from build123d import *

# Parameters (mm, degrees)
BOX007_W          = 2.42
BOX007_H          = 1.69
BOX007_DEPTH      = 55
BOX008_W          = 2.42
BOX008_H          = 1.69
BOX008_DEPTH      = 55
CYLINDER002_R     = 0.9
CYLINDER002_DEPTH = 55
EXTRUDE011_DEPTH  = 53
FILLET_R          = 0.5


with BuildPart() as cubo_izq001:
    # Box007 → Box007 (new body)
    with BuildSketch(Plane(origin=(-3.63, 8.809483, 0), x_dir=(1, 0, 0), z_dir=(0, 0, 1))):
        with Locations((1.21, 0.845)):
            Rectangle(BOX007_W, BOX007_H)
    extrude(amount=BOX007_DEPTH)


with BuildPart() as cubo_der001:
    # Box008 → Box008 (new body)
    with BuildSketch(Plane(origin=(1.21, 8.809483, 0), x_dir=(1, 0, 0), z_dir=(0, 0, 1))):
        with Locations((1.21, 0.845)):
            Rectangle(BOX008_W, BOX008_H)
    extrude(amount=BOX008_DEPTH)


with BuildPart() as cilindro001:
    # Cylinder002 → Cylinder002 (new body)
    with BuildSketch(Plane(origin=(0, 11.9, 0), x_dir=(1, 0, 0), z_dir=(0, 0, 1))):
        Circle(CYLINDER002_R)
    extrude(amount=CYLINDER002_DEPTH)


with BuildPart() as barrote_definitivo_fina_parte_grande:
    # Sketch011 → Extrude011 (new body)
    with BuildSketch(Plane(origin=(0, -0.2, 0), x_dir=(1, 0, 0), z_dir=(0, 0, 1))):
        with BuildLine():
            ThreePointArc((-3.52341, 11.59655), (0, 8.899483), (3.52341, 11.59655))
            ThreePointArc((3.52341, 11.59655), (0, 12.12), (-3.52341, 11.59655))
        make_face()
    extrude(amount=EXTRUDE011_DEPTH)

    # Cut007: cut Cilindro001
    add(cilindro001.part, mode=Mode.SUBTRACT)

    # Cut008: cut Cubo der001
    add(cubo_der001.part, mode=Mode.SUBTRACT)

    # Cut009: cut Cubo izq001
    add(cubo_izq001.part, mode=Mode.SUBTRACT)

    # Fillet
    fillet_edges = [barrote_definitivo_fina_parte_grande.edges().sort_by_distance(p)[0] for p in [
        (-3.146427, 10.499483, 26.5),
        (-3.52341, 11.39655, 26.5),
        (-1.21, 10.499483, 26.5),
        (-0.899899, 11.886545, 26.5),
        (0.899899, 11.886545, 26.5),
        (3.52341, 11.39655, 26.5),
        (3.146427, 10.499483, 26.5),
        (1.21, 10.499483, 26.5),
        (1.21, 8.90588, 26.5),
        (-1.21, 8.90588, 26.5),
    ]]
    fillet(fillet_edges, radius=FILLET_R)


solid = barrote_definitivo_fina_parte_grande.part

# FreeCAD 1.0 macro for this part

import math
import FreeCAD as App
import Part
import Sketcher

V = App.Vector
Q = App.Units.Quantity


def edges_at(feature, points):
    """Names of the edges that pass closest to the given points."""
    edges = feature.Shape.Edges
    near = lambda p: min(range(len(edges)), key=lambda i: edges[i].distToShape(Part.Vertex(*p))[0])
    return sorted({f"Edge{near(p) + 1}" for p in points})


def add_polygon(sketch, points):
    """Adds a closed chain of lines whose ends are joined by coincident constraints."""
    first, n = sketch.GeometryCount, len(points)
    for a, b in zip(points, points[1:] + points[:1]):
        sketch.addGeometry(Part.LineSegment(App.Vector(*a, 0), App.Vector(*b, 0)), False)
    for i in range(n):
        sketch.addConstraint(Sketcher.Constraint("Coincident", first + i, 2, first + (i + 1) % n, 1))

doc = App.newDocument("Part")
body = doc.addObject("PartDesign::Body", "Body")

# Sketch on XY plane
sketch1 = body.newObject("Sketcher::SketchObject", "Sketch")
sketch1.AttachmentSupport = (doc.getObject("XY_Plane"), [""])
sketch1.MapMode = "FlatFace"
add_polygon(sketch1, [(-3.63, 10.499483), (-3.63, 8.809483), (-1.21, 8.809483), (-1.21, 10.499483)])  # lines 0-3
sketch1.addConstraint([
    Sketcher.Constraint("Vertical", 0),
    Sketcher.Constraint("Horizontal", 1),
    Sketcher.Constraint("Vertical", 2),
    Sketcher.Constraint("Horizontal", 3),
    Sketcher.Constraint("DistanceX", 1, 1, 1, 2, Q("2.42 mm")),
    Sketcher.Constraint("DistanceY", 0, 2, 0, 1, Q("1.69 mm")),
    Sketcher.Constraint("DistanceX", 0, 2, -1, 1, Q("3.63 mm")),
    Sketcher.Constraint("DistanceY", -1, 1, 0, 2, Q("8.809483 mm")),
])
pad1 = body.newObject("PartDesign::Pad", "Pad")
pad1.Profile = sketch1
pad1.Length = 55
body2 = doc.addObject("PartDesign::Body", "Body001")

# Sketch on XY plane
sketch2 = body2.newObject("Sketcher::SketchObject", "Sketch001")
sketch2.AttachmentSupport = (doc.getObject("XY_Plane001"), [""])
sketch2.MapMode = "FlatFace"
add_polygon(sketch2, [(1.21, 10.499483), (1.21, 8.809483), (3.63, 8.809483), (3.63, 10.499483)])  # lines 0-3
sketch2.addConstraint([
    Sketcher.Constraint("Vertical", 0),
    Sketcher.Constraint("Horizontal", 1),
    Sketcher.Constraint("Vertical", 2),
    Sketcher.Constraint("Horizontal", 3),
    Sketcher.Constraint("DistanceX", 1, 1, 1, 2, Q("2.42 mm")),
    Sketcher.Constraint("DistanceY", 0, 2, 0, 1, Q("1.69 mm")),
    Sketcher.Constraint("DistanceX", -1, 1, 0, 2, Q("1.21 mm")),
    Sketcher.Constraint("DistanceY", -1, 1, 0, 2, Q("8.809483 mm")),
])
pad2 = body2.newObject("PartDesign::Pad", "Pad001")
pad2.Profile = sketch2
pad2.Length = 55
body3 = doc.addObject("PartDesign::Body", "Body002")

# Sketch on XY plane
sketch3 = body3.newObject("Sketcher::SketchObject", "Sketch002")
sketch3.AttachmentSupport = (doc.getObject("XY_Plane002"), [""])
sketch3.MapMode = "FlatFace"
sketch3.addGeometry(Part.Circle(V(0, 11.9, 0), V(0, 0, 1), 0.9), False)
sketch3.addConstraint([
    Sketcher.Constraint("PointOnObject", 0, 3, -2),
    Sketcher.Constraint("Diameter", 0, Q("1.8 mm")),
    Sketcher.Constraint("DistanceY", -1, 1, 0, 3, Q("11.9 mm")),
])
pad3 = body3.newObject("PartDesign::Pad", "Pad002")
pad3.Profile = sketch3
pad3.Length = 55
body4 = doc.addObject("PartDesign::Body", "Body003")

# Sketch on XY plane
sketch4 = body4.newObject("Sketcher::SketchObject", "Sketch003")
sketch4.AttachmentSupport = (doc.getObject("XY_Plane003"), [""])
sketch4.MapMode = "FlatFace"
sketch4.addGeometry([
    Part.ArcOfCircle(Part.Circle(V(0, 12.349483, 0), V(0, 0, 1), 3.65), math.radians(-164.865993), math.radians(-15.134007)),
    Part.ArcOfCircle(Part.Circle(V(0, -0.19999, 0), V(0, 0, 1), 12.11999), math.radians(73.099495), math.radians(106.900505)),
], False)
sketch4.addConstraint([
    Sketcher.Constraint("Coincident", 0, 1, 1, 2),
    Sketcher.Constraint("Coincident", 1, 1, 0, 2),
    Sketcher.Constraint("Symmetric", 0, 1, 1, 1, -2),
    Sketcher.Constraint("Radius", 0, Q("3.65 mm")),
    Sketcher.Constraint("Radius", 1, Q("12.11999 mm")),
    Sketcher.Constraint("DistanceY", 1, 3, -1, 1, Q("0.19999 mm")),
    Sketcher.Constraint("DistanceX", 0, 1, -1, 1, Q("3.52341 mm")),
])
pad4 = body4.newObject("PartDesign::Pad", "Pad003")
pad4.Profile = sketch4
pad4.Length = 53
doc.recompute()

boolean = body4.newObject("PartDesign::Boolean", "Boolean")
boolean.Type = "Cut"
boolean.addObjects([body3])
doc.recompute()

boolean2 = body4.newObject("PartDesign::Boolean", "Boolean001")
boolean2.Type = "Cut"
boolean2.addObjects([body2])
doc.recompute()

boolean3 = body4.newObject("PartDesign::Boolean", "Boolean002")
boolean3.Type = "Cut"
boolean3.addObjects([body])
doc.recompute()

fillet = body4.newObject("PartDesign::Fillet", "Fillet")
fillet.Base = (boolean3, edges_at(boolean3, [
    (-3.146, 10.499, 26.5),
    (-3.523, 11.397, 26.5),
    (-1.21, 10.499, 26.5),
    (-0.9, 11.887, 26.5),
    (0.9, 11.887, 26.5),
    (3.523, 11.397, 26.5),
    (3.146, 10.499, 26.5),
    (1.21, 10.499, 26.5),
    (1.21, 8.906, 26.5),
    (-1.21, 8.906, 26.5),
]))
fillet.Radius = 0.5

doc.recompute()
